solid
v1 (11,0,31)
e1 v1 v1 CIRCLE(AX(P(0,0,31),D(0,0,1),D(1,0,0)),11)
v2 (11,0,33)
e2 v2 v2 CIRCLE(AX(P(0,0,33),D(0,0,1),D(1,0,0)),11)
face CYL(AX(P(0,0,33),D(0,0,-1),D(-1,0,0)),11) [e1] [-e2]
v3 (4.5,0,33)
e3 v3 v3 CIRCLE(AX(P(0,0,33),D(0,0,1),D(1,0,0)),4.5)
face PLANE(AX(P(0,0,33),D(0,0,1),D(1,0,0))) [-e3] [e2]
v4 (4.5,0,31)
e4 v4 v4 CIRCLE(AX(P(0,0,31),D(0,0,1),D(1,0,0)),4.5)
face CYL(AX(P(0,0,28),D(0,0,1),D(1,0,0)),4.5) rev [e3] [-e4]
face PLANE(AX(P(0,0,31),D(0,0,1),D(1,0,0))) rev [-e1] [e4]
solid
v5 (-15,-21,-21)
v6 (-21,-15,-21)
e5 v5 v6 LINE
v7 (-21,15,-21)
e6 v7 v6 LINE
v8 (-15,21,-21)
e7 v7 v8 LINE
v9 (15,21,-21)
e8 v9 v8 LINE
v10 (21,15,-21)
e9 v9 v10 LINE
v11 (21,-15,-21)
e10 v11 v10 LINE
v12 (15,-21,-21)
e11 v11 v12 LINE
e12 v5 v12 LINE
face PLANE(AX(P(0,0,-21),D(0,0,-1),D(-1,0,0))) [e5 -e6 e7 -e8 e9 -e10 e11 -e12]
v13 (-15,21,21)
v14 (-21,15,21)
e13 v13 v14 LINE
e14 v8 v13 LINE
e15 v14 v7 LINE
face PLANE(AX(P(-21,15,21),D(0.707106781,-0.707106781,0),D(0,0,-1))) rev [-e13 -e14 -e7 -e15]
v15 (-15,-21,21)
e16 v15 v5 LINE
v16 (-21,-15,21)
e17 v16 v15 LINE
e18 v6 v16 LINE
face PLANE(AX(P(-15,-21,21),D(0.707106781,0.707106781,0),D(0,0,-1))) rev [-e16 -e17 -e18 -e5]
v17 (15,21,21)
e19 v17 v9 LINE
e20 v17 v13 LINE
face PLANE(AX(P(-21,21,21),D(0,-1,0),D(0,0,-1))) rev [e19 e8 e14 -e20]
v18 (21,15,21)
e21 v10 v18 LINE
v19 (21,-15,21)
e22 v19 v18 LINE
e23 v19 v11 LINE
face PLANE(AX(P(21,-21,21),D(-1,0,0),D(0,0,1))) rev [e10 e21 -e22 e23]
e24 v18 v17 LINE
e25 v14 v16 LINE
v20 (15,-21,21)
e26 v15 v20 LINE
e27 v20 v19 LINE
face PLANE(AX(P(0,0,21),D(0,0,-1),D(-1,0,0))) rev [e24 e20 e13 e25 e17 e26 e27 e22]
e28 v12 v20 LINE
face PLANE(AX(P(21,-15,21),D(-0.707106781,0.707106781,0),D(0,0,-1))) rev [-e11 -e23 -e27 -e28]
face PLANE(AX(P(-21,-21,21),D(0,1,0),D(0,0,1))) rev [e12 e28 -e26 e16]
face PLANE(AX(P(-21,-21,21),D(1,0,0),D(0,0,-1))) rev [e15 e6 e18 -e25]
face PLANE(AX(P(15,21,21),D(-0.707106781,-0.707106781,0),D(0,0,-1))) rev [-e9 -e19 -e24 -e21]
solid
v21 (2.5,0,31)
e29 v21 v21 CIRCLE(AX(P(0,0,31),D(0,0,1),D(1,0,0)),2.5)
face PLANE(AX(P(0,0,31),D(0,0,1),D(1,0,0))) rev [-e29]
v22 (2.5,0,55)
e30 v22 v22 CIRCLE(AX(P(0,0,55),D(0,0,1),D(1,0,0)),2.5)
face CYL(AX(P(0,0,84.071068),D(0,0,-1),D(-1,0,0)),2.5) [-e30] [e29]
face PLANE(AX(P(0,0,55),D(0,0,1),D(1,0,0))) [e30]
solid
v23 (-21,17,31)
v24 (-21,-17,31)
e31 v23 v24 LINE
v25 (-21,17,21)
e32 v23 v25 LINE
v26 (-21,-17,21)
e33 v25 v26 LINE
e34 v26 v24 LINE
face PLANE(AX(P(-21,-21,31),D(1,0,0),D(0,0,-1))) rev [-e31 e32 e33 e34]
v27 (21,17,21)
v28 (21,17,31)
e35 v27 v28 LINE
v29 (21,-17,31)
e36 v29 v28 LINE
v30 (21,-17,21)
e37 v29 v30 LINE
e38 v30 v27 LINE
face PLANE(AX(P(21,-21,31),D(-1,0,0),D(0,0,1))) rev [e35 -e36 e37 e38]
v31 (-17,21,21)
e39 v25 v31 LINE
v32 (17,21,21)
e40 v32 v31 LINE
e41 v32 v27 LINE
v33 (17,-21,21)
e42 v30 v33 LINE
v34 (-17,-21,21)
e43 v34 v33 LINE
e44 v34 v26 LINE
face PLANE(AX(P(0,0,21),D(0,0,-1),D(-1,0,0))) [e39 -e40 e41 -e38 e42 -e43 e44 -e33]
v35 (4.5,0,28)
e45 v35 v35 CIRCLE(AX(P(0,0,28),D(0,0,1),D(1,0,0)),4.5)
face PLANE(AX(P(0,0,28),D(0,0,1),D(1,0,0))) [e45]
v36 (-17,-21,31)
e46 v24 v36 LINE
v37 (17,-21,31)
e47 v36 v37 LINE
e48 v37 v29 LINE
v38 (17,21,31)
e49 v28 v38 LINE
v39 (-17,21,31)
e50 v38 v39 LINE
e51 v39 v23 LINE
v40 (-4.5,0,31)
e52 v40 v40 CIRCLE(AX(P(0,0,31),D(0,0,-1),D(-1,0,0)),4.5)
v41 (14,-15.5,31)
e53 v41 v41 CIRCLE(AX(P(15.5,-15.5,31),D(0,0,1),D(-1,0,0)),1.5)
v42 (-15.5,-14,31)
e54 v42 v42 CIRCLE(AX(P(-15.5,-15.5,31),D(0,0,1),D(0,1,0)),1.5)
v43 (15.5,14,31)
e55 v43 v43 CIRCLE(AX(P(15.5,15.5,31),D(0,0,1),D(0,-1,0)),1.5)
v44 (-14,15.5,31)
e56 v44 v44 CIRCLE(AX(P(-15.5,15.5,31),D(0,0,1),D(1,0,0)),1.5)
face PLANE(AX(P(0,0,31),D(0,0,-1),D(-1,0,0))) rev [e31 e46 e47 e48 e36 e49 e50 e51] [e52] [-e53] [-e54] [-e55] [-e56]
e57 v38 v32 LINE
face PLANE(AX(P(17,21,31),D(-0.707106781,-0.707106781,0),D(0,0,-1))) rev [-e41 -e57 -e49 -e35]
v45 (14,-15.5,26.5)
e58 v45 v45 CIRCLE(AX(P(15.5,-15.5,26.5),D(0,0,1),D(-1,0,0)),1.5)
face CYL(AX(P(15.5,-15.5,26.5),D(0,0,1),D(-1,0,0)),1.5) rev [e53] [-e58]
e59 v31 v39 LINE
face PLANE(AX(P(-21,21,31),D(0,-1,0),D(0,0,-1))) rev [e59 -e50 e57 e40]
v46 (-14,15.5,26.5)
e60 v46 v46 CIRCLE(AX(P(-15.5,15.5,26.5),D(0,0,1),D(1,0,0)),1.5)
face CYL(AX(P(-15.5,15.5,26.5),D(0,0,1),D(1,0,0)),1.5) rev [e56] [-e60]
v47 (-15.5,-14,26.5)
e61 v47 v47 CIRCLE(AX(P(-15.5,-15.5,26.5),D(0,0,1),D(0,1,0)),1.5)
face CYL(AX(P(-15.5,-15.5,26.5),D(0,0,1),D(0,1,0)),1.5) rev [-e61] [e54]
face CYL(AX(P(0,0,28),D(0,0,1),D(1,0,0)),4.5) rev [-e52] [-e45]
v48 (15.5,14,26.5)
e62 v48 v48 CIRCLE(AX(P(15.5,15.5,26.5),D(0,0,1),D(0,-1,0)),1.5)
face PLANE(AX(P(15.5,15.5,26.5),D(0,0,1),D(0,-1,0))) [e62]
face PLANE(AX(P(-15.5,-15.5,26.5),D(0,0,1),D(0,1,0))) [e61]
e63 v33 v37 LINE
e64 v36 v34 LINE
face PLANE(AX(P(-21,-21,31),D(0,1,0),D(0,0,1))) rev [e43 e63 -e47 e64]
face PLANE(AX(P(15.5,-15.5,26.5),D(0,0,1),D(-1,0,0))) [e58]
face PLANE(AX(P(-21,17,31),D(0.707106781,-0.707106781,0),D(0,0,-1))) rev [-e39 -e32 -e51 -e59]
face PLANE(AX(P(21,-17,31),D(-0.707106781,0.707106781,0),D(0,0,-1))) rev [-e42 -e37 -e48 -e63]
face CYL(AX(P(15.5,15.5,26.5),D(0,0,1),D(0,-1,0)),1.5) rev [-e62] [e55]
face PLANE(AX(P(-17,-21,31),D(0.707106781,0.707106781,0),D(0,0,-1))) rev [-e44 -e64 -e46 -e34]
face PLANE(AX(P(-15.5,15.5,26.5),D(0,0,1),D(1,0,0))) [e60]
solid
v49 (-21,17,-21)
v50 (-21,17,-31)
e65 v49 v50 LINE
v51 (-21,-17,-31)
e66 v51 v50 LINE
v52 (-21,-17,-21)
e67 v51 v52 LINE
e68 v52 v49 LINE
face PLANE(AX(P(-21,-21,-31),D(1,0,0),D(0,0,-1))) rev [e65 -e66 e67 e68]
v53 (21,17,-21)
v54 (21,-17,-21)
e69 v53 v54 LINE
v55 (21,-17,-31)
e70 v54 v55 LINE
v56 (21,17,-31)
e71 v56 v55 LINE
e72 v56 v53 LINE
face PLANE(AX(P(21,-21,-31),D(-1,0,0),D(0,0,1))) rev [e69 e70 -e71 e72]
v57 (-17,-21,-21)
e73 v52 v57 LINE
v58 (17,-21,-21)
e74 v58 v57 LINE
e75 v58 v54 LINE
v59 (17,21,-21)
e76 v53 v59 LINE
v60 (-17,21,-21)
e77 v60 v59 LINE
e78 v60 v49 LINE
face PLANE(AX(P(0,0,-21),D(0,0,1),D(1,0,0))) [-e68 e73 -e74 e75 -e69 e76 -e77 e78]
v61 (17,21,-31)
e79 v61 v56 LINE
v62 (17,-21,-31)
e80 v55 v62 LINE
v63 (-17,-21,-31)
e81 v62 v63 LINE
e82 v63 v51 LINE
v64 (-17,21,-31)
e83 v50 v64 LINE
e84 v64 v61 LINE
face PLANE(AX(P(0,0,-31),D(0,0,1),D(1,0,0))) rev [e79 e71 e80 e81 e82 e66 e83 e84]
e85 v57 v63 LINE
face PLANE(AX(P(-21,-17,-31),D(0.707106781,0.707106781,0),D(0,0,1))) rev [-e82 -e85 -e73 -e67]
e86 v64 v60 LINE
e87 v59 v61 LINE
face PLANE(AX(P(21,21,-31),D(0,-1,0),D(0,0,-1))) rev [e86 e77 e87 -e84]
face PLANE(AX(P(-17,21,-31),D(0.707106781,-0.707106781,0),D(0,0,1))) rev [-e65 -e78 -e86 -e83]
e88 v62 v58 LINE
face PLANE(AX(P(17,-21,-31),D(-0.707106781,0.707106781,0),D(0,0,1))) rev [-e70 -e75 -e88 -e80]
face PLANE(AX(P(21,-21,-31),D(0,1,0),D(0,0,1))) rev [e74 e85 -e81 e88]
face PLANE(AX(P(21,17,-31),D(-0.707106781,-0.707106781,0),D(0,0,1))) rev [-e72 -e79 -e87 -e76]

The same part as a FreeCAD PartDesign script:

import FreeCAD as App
import Part
import Sketcher


def edges_at(feature, points):
    """Names of the edges that pass closest to the given points."""
    edges = feature.Shape.Edges
    near = lambda p: min(range(len(edges)), key=lambda i: edges[i].distToShape(Part.Vertex(*p))[0])
    return sorted({f"Edge{near(p) + 1}" for p in points})


def add_polygon(sketch, points):
    """Adds a closed chain of lines whose ends are joined by coincident constraints."""
    first, n = sketch.GeometryCount, len(points)
    for a, b in zip(points, points[1:] + points[:1]):
        sketch.addGeometry(Part.LineSegment(App.Vector(*a, 0), App.Vector(*b, 0)), False)
    for i in range(n):
        sketch.addConstraint(Sketcher.Constraint("Coincident", first + i, 2, first + (i + 1) % n, 1))

doc = App.newDocument("Part")
body = doc.addObject("PartDesign::Body", "Body")

# Sketch on XY plane
sketch1 = body.newObject("Sketcher::SketchObject", "Sketch")
sketch1.AttachmentSupport = (doc.getObject("XY_Plane"), [""])
sketch1.MapMode = "FlatFace"
add_polygon(sketch1, [(-21, 21), (-21, -21), (21, -21), (21, 21)])  # lines 0-3
sketch1.addConstraint(Sketcher.Constraint("Vertical", 0))
sketch1.addConstraint(Sketcher.Constraint("Horizontal", 1))
sketch1.addConstraint(Sketcher.Constraint("Vertical", 2))
sketch1.addConstraint(Sketcher.Constraint("Horizontal", 3))
sketch1.addConstraint(Sketcher.Constraint("Symmetric", 0, 2, 2, 2, -1, 1))
sketch1.addConstraint(Sketcher.Constraint("Equal", 3, 0))
sketch1.addConstraint(Sketcher.Constraint("DistanceX", 1, 1, 1, 2, 42.0))
pad1 = body.newObject("PartDesign::Pad", "Pad")
pad1.Profile = sketch1
pad1.Length = 42
pad1.Midplane = True
doc.recompute()

chamfer = body.newObject("PartDesign::Chamfer", "Chamfer")
chamfer.Base = (pad1, edges_at(pad1, [
    (21, -21, 0),
    (-21, -21, 0),
    (-21, 21, 0),
    (21, 21, 0),
]))
chamfer.Size = 6
body2 = doc.addObject("PartDesign::Body", "Body001")

# Sketch on XY plane
sketch2 = body2.newObject("Sketcher::SketchObject", "Sketch001")
sketch2.AttachmentSupport = (doc.getObject("XY_Plane001"), [""])
sketch2.MapMode = "FlatFace"
sketch2.AttachmentOffset = App.Placement(App.Vector(0, 0, 21), App.Rotation())
add_polygon(sketch2, [(-21, 21), (-21, -21), (21, -21), (21, 21)])  # lines 0-3
sketch2.addConstraint(Sketcher.Constraint("Vertical", 0))
sketch2.addConstraint(Sketcher.Constraint("Horizontal", 1))
sketch2.addConstraint(Sketcher.Constraint("Vertical", 2))
sketch2.addConstraint(Sketcher.Constraint("Horizontal", 3))
sketch2.addConstraint(Sketcher.Constraint("Symmetric", 0, 2, 2, 2, -1, 1))
sketch2.addConstraint(Sketcher.Constraint("Equal", 3, 0))
sketch2.addConstraint(Sketcher.Constraint("DistanceX", 1, 1, 1, 2, 42.0))
pad2 = body2.newObject("PartDesign::Pad", "Pad001")
pad2.Profile = sketch2
pad2.Length = 10
doc.recompute()

chamfer2 = body2.newObject("PartDesign::Chamfer", "Chamfer001")
chamfer2.Base = (pad2, edges_at(pad2, [
    (21, -21, 26),
    (-21, -21, 26),
    (-21, 21, 26),
    (21, 21, 26),
]))
chamfer2.Size = 4
body3 = doc.addObject("PartDesign::Body", "Body002")

# Sketch on XY plane
sketch3 = body3.newObject("Sketcher::SketchObject", "Sketch002")
sketch3.AttachmentSupport = (doc.getObject("XY_Plane002"), [""])
sketch3.MapMode = "FlatFace"
sketch3.AttachmentOffset = App.Placement(App.Vector(0, 0, -21), App.Rotation())
add_polygon(sketch3, [(21, 21), (21, -21), (-21, -21), (-21, 21)])  # lines 0-3
sketch3.addConstraint(Sketcher.Constraint("Vertical", 0))
sketch3.addConstraint(Sketcher.Constraint("Horizontal", 1))
sketch3.addConstraint(Sketcher.Constraint("Vertical", 2))
sketch3.addConstraint(Sketcher.Constraint("Horizontal", 3))
sketch3.addConstraint(Sketcher.Constraint("Symmetric", 0, 2, 2, 2, -1, 1))
sketch3.addConstraint(Sketcher.Constraint("Equal", 3, 0))
sketch3.addConstraint(Sketcher.Constraint("DistanceX", 1, 2, 1, 1, 42.0))
pad3 = body3.newObject("PartDesign::Pad", "Pad002")
pad3.Profile = sketch3
pad3.Length = 10
pad3.Reversed = True
doc.recompute()

chamfer3 = body3.newObject("PartDesign::Chamfer", "Chamfer002")
chamfer3.Base = (pad3, edges_at(pad3, [
    (-21, -21, -26),
    (21, -21, -26),
    (21, 21, -26),
    (-21, 21, -26),
]))
chamfer3.Size = 4
body4 = doc.addObject("PartDesign::Body", "Body003")

# Sketch on XY plane
sketch4 = body4.newObject("Sketcher::SketchObject", "Sketch003")
sketch4.AttachmentSupport = (doc.getObject("XY_Plane003"), [""])
sketch4.MapMode = "FlatFace"
sketch4.AttachmentOffset = App.Placement(App.Vector(0, 0, 31), App.Rotation())
sketch4.addGeometry(Part.Circle(App.Vector(0, 0, 0), App.Vector(0, 0, 1), 11), False)
sketch4.addConstraint(Sketcher.Constraint("Coincident", 0, 3, -1, 1))
sketch4.addConstraint(Sketcher.Constraint("Diameter", 0, 22.0))
pad4 = body4.newObject("PartDesign::Pad", "Pad003")
pad4.Profile = sketch4
pad4.Length = 2
body5 = doc.addObject("PartDesign::Body", "Body004")

# Sketch on XY plane
sketch5 = body5.newObject("Sketcher::SketchObject", "Sketch004")
sketch5.AttachmentSupport = (doc.getObject("XY_Plane004"), [""])
sketch5.MapMode = "FlatFace"
sketch5.AttachmentOffset = App.Placement(App.Vector(0, 0, 33), App.Rotation())
sketch5.addGeometry(Part.Circle(App.Vector(0, 0, 0), App.Vector(0, 0, 1), 4.5), False)
sketch5.addConstraint(Sketcher.Constraint("Coincident", 0, 3, -1, 1))
sketch5.addConstraint(Sketcher.Constraint("Diameter", 0, 9.0))
pad5 = body5.newObject("PartDesign::Pad", "Pad004")
pad5.Profile = sketch5
pad5.Length = 5
pad5.Reversed = True
doc.recompute()

body6 = doc.addObject("PartDesign::Body", "Body005")
body6.BaseFeature = body5
boolean = body2.newObject("PartDesign::Boolean", "Boolean")
boolean.Type = "Cut"
boolean.addObjects([body6])
doc.recompute()

# Sketch on XY plane
sketch6 = body2.newObject("Sketcher::SketchObject", "Sketch005")
sketch6.AttachmentSupport = (doc.getObject("XY_Plane001"), [""])
sketch6.MapMode = "FlatFace"
sketch6.AttachmentOffset = App.Placement(App.Vector(0, 0, 31), App.Rotation())
sketch6.addGeometry(Part.Circle(App.Vector(-15.5, 15.5, 0), App.Vector(0, 0, 1), 1.5), False)
sketch6.addConstraint(Sketcher.Constraint("Diameter", 0, 3.0))
sketch6.addConstraint(Sketcher.Constraint("DistanceX", 0, 3, -1, 1, 15.5))
sketch6.addConstraint(Sketcher.Constraint("DistanceY", -1, 1, 0, 3, 15.5))
pocket1 = body2.newObject("PartDesign::Pocket", "Pocket")
pocket1.Profile = sketch6
pocket1.Length = 4.5
doc.recompute()

polarpattern = body2.newObject("PartDesign::PolarPattern", "PolarPattern")
polarpattern.Originals = [pocket1]
polarpattern.Axis = (doc.getObject("Z_Axis001"), [""])
polarpattern.Angle = 360
polarpattern.Occurrences = 4
body2.Tip = polarpattern
doc.recompute()

boolean2 = body4.newObject("PartDesign::Boolean", "Boolean001")
boolean2.Type = "Cut"
boolean2.addObjects([body5])
body7 = doc.addObject("PartDesign::Body", "Body006")

# Sketch on XY plane
sketch7 = body7.newObject("Sketcher::SketchObject", "Sketch006")
sketch7.AttachmentSupport = (doc.getObject("XY_Plane006"), [""])
sketch7.MapMode = "FlatFace"
sketch7.AttachmentOffset = App.Placement(App.Vector(0, 0, 31), App.Rotation())
sketch7.addGeometry(Part.Circle(App.Vector(0, 0, 0), App.Vector(0, 0, 1), 2.5), False)
sketch7.addConstraint(Sketcher.Constraint("Coincident", 0, 3, -1, 1))
sketch7.addConstraint(Sketcher.Constraint("Diameter", 0, 5.0))
pad6 = body7.newObject("PartDesign::Pad", "Pad005")
pad6.Profile = sketch7
pad6.Length = 24

doc.recompute()
